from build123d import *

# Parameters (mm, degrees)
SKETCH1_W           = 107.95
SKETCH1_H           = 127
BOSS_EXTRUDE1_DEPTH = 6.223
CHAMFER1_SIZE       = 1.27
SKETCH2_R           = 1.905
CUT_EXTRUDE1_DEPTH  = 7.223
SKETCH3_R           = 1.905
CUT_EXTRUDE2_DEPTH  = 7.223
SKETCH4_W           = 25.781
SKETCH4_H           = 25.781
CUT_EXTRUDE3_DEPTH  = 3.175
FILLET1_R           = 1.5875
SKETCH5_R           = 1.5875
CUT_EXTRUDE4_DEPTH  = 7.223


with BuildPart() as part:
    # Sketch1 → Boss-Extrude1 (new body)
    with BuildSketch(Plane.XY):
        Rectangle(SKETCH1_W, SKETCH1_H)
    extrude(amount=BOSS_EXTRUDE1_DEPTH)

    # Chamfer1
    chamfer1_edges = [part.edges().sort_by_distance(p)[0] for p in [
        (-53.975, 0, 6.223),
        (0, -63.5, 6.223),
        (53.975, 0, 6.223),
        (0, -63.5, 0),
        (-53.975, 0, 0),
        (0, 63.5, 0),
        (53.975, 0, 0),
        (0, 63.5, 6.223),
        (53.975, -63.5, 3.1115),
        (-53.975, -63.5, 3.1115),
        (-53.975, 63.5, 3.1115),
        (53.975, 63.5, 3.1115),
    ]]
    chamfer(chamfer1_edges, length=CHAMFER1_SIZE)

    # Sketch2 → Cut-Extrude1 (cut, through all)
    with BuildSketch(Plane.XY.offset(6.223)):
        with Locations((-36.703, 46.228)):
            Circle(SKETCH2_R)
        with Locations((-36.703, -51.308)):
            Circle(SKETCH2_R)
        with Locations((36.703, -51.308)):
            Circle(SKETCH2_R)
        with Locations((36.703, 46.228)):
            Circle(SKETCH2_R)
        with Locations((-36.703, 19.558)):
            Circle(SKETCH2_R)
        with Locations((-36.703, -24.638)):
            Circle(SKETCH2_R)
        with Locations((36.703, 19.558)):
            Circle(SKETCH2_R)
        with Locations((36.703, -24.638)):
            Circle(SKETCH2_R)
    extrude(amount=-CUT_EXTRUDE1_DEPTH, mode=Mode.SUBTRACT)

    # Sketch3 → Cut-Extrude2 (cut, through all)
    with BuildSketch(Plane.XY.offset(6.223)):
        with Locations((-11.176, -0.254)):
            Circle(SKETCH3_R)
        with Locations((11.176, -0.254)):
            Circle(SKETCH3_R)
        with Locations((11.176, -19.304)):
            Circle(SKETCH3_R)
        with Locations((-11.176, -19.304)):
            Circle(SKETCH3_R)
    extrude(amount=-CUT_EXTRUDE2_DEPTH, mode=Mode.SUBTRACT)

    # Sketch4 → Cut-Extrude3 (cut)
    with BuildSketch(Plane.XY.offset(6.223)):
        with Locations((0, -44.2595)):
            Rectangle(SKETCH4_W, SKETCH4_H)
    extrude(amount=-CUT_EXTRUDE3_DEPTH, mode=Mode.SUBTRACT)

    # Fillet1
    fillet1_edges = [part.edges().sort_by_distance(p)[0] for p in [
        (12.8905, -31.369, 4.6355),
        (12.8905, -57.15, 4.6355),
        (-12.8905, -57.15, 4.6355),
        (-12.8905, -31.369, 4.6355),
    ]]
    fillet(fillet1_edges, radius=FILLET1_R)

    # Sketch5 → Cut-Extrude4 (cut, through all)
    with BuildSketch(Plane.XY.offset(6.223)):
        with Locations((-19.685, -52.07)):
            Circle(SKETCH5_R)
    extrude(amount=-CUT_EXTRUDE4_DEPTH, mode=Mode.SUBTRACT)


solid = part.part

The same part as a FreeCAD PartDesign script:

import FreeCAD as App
import Part
import Sketcher

V = App.Vector
Q = App.Units.Quantity


def edges_at(feature, points):
    """Names of the edges that pass closest to the given points."""
    edges = feature.Shape.Edges
    near = lambda p: min(range(len(edges)), key=lambda i: edges[i].distToShape(Part.Vertex(*p))[0])
    return sorted({f"Edge{near(p) + 1}" for p in points})

doc = App.newDocument("Part")
body = doc.addObject("PartDesign::Body", "Body")

# Sketch on XY plane
sketch1 = body.newObject("Sketcher::SketchObject", "Sketch")
sketch1.AttachmentSupport = (doc.getObject("XY_Plane"), [""])
sketch1.MapMode = "FlatFace"
sketch1.addGeometry([
    Part.LineSegment(V(-54, 64, 0), V(-54, -64, 0)),
    Part.LineSegment(V(-54, -64, 0), V(54, -64, 0)),
    Part.LineSegment(V(54, -64, 0), V(54, 64, 0)),
    Part.LineSegment(V(54, 64, 0), V(-54, 64, 0)),
], False)
sketch1.addConstraint([
    Sketcher.Constraint("Coincident", 0, 2, 1, 1),
    Sketcher.Constraint("Coincident", 1, 2, 2, 1),
    Sketcher.Constraint("Coincident", 2, 2, 3, 1),
    Sketcher.Constraint("Coincident", 3, 2, 0, 1),
    Sketcher.Constraint("Vertical", 0),
    Sketcher.Constraint("Horizontal", 1),
    Sketcher.Constraint("Vertical", 2),
    Sketcher.Constraint("Horizontal", 3),
    Sketcher.Constraint("Symmetric", 0, 2, 2, 2, -1, 1),
    Sketcher.Constraint("DistanceY", 0, 2, 0, 1, Q("5 in")),
    Sketcher.Constraint("DistanceX", 1, 1, 1, 2, Q("4.25 in")),
])
pad1 = body.newObject("PartDesign::Pad", "Pad")
pad1.Profile = sketch1
pad1.Length = Q("0.245 in")
doc.recompute()

chamfer = body.newObject("PartDesign::Chamfer", "Chamfer")
chamfer.Base = (pad1, ["Edge1"])
chamfer.UseAllEdges = True
chamfer.Size = Q("0.05 in")

# Sketch on XY plane
sketch2 = body.newObject("Sketcher::SketchObject", "Sketch001")
sketch2.AttachmentSupport = (doc.getObject("XY_Plane"), [""])
sketch2.MapMode = "FlatFace"
sketch2.AttachmentOffset = App.Placement(V(0, 0, 0.245 * 25.4), App.Rotation())
sketch2.addGeometry([
    Part.Circle(V(-36.7, 46.2, 0), V(0, 0, 1), 1.9),  # 0
    Part.Circle(V(-36.7, -51.3, 0), V(0, 0, 1), 1.9),  # 1
    Part.Circle(V(36.7, -51.3, 0), V(0, 0, 1), 1.9),  # 2
    Part.Circle(V(36.7, 46.2, 0), V(0, 0, 1), 1.9),  # 3
    Part.Circle(V(-36.7, 19.6, 0), V(0, 0, 1), 1.9),  # 4
    Part.Circle(V(-36.7, -24.6, 0), V(0, 0, 1), 1.9),  # 5
    Part.Circle(V(36.7, 19.6, 0), V(0, 0, 1), 1.9),  # 6
    Part.Circle(V(36.7, -24.6, 0), V(0, 0, 1), 1.9),  # 7
], False)
sketch2.addConstraint([
    Sketcher.Constraint("Equal", 0, 1),
    Sketcher.Constraint("Equal", 1, 2),
    Sketcher.Constraint("Equal", 2, 3),
    Sketcher.Constraint("Equal", 3, 4),
    Sketcher.Constraint("Equal", 4, 5),
    Sketcher.Constraint("Equal", 5, 6),
    Sketcher.Constraint("Equal", 6, 7),
    Sketcher.Constraint("Symmetric", 1, 3, 2, 3, -2),
    Sketcher.Constraint("Symmetric", 0, 3, 3, 3, -2),
    Sketcher.Constraint("Symmetric", 4, 3, 6, 3, -2),
    Sketcher.Constraint("Symmetric", 5, 3, 7, 3, -2),
    Sketcher.Constraint("Vertical", 0, 3, 1, 3),
    Sketcher.Constraint("Vertical", 1, 3, 4, 3),
    Sketcher.Constraint("Vertical", 4, 3, 5, 3),
    Sketcher.Constraint("Diameter", 0, Q("0.15 in")),
    Sketcher.Constraint("DistanceY", -1, 1, 0, 3, Q("1.82 in")),
    Sketcher.Constraint("DistanceY", 1, 3, -1, 1, Q("2.02 in")),
    Sketcher.Constraint("DistanceY", -1, 1, 4, 3, Q("0.77 in")),
    Sketcher.Constraint("DistanceY", 5, 3, -1, 1, Q("0.97 in")),
    Sketcher.Constraint("DistanceX", 1, 3, 2, 3, Q("2.89 in")),
])
pocket1 = body.newObject("PartDesign::Pocket", "Pocket")
pocket1.Profile = sketch2
pocket1.Type = "ThroughAll"

# Sketch on XY plane
sketch3 = body.newObject("Sketcher::SketchObject", "Sketch002")
sketch3.AttachmentSupport = (doc.getObject("XY_Plane"), [""])
sketch3.MapMode = "FlatFace"
sketch3.AttachmentOffset = App.Placement(V(0, 0, 0.245 * 25.4), App.Rotation())
sketch3.addGeometry([
    Part.Circle(V(-11.2, -0.3, 0), V(0, 0, 1), 1.9),
    Part.Circle(V(11.2, -0.3, 0), V(0, 0, 1), 1.9),
    Part.Circle(V(11.2, -19.3, 0), V(0, 0, 1), 1.9),
    Part.Circle(V(-11.2, -19.3, 0), V(0, 0, 1), 1.9),
], False)
sketch3.addConstraint([
    Sketcher.Constraint("Equal", 0, 1),
    Sketcher.Constraint("Equal", 1, 2),
    Sketcher.Constraint("Equal", 2, 3),
    Sketcher.Constraint("Symmetric", 0, 3, 1, 3, -2),
    Sketcher.Constraint("Symmetric", 2, 3, 3, 3, -2),
    Sketcher.Constraint("Vertical", 1, 3, 2, 3),
    Sketcher.Constraint("Diameter", 0, Q("0.15 in")),
    Sketcher.Constraint("DistanceX", 0, 3, -1, 1, Q("0.44 in")),
    Sketcher.Constraint("DistanceY", 0, 3, -1, 1, Q("0.01 in")),
    Sketcher.Constraint("DistanceY", 2, 3, -1, 1, Q("0.76 in")),
])
pocket2 = body.newObject("PartDesign::Pocket", "Pocket001")
pocket2.Profile = sketch3
pocket2.Type = "ThroughAll"

# Sketch on XY plane
sketch4 = body.newObject("Sketcher::SketchObject", "Sketch003")
sketch4.AttachmentSupport = (doc.getObject("XY_Plane"), [""])
sketch4.MapMode = "FlatFace"
sketch4.AttachmentOffset = App.Placement(V(0, 0, 0.245 * 25.4), App.Rotation())
sketch4.addGeometry([
    Part.LineSegment(V(-13, -31, 0), V(-13, -57, 0)),
    Part.LineSegment(V(-13, -57, 0), V(13, -57, 0)),
    Part.LineSegment(V(13, -57, 0), V(13, -31, 0)),
    Part.LineSegment(V(13, -31, 0), V(-13, -31, 0)),
], False)
sketch4.addConstraint([
    Sketcher.Constraint("Coincident", 0, 2, 1, 1),
    Sketcher.Constraint("Coincident", 1, 2, 2, 1),
    Sketcher.Constraint("Coincident", 2, 2, 3, 1),
    Sketcher.Constraint("Coincident", 3, 2, 0, 1),
    Sketcher.Constraint("Vertical", 0),
    Sketcher.Constraint("Horizontal", 1),
    Sketcher.Constraint("Vertical", 2),
    Sketcher.Constraint("Horizontal", 3),
    Sketcher.Constraint("Equal", 3, 0),
    Sketcher.Constraint("DistanceX", 1, 1, 1, 2, Q("1.015 in")),
    Sketcher.Constraint("DistanceY", 0, 2, -1, 1, Q("2.25 in")),
    Sketcher.Constraint("DistanceX", 0, 2, -1, 1, Q("0.5075 in")),
])
pocket3 = body.newObject("PartDesign::Pocket", "Pocket002")
pocket3.Profile = sketch4
pocket3.Length = Q("0.125 in")
doc.recompute()

fillet = body.newObject("PartDesign::Fillet", "Fillet")
fillet.Base = (pocket3, edges_at(pocket3, [
    (12.89, -31.369, 4.636),
    (12.89, -57.15, 4.636),
    (-12.89, -57.15, 4.636),
    (-12.89, -31.369, 4.636),
]))
fillet.Radius = Q("0.0625 in")

# Sketch on XY plane
sketch5 = body.newObject("Sketcher::SketchObject", "Sketch004")
sketch5.AttachmentSupport = (doc.getObject("XY_Plane"), [""])
sketch5.MapMode = "FlatFace"
sketch5.AttachmentOffset = App.Placement(V(0, 0, 0.245 * 25.4), App.Rotation())
sketch5.addGeometry(Part.Circle(V(-19.7, -52.1, 0), V(0, 0, 1), 1.6), False)
sketch5.addConstraint([
    Sketcher.Constraint("Diameter", 0, Q("0.125 in")),
    Sketcher.Constraint("DistanceY", 0, 3, -1, 1, Q("2.05 in")),
    Sketcher.Constraint("DistanceX", 0, 3, -1, 1, Q("0.775 in")),
])
pocket4 = body.newObject("PartDesign::Pocket", "Pocket003")
pocket4.Profile = sketch5
pocket4.Type = "ThroughAll"

doc.recompute()
